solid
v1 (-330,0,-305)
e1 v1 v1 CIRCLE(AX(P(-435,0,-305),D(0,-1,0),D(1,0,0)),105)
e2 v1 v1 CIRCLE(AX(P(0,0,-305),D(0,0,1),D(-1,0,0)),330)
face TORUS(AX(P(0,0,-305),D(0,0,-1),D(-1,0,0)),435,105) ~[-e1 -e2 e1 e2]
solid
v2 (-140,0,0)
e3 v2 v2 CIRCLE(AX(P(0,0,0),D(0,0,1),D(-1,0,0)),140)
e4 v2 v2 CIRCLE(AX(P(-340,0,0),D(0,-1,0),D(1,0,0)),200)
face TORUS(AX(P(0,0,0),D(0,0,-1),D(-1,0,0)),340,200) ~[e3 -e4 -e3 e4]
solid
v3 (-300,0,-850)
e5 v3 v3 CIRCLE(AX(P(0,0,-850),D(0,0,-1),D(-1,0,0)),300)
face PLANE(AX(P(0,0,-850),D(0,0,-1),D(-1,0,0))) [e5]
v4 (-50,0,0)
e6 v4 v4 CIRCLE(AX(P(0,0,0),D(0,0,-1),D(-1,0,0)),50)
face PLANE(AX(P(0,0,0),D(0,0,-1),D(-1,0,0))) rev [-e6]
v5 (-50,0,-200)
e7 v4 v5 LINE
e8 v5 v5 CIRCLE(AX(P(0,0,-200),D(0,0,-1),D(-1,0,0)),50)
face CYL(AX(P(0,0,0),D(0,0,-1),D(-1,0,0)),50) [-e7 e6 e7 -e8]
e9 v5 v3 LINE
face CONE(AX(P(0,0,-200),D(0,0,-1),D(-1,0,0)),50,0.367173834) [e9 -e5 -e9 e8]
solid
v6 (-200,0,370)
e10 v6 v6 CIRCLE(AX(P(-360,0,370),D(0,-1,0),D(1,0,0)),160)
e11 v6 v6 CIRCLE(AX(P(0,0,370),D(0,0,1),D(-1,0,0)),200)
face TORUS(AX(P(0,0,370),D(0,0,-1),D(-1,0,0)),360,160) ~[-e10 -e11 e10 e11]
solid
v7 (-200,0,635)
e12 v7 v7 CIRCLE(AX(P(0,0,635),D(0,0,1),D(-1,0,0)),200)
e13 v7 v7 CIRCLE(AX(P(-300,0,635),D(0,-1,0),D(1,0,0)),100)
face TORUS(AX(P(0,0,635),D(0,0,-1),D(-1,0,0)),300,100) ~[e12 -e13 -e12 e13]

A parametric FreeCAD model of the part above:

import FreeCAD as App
import Part
import Sketcher


def add_polygon(sketch, points):
    """Adds a closed chain of lines whose ends are joined by coincident constraints."""
    first, n = sketch.GeometryCount, len(points)
    for a, b in zip(points, points[1:] + points[:1]):
        sketch.addGeometry(Part.LineSegment(App.Vector(*a, 0), App.Vector(*b, 0)), False)
    for i in range(n):
        sketch.addConstraint(Sketcher.Constraint("Coincident", first + i, 2, first + (i + 1) % n, 1))

doc = App.newDocument("Part")
body = doc.addObject("PartDesign::Body", "Body")

sketch1 = body.newObject("Sketcher::SketchObject", "Sketch")
sketch1.AttachmentSupport = (doc.getObject("XZ_Plane"), [""])
sketch1.MapMode = "FlatFace"
sketch1.addGeometry(Part.Circle(App.Vector(-340, 0, 0), App.Vector(0, 0, 1), 200), False)
sketch1.addConstraint([
    Sketcher.Constraint("PointOnObject", 0, 3, -1),
    Sketcher.Constraint("Diameter", 0, 400.0),
    Sketcher.Constraint("DistanceX", 0, 3, -1, 1, 340.0),
])
revolution = body.newObject("PartDesign::Revolution", "Revolution")
revolution.Profile = sketch1
revolution.ReferenceAxis = (sketch1, ["V_Axis"])
revolution.Angle = 360
body2 = doc.addObject("PartDesign::Body", "Body001")

sketch2 = body2.newObject("Sketcher::SketchObject", "Sketch001")
sketch2.AttachmentSupport = (doc.getObject("XZ_Plane001"), [""])
sketch2.MapMode = "FlatFace"
sketch2.addGeometry(Part.Circle(App.Vector(-435, -305, 0), App.Vector(0, 0, 1), 105), False)
sketch2.addConstraint([
    Sketcher.Constraint("Diameter", 0, 210.0),
    Sketcher.Constraint("DistanceX", 0, 3, -1, 1, 435.0),
    Sketcher.Constraint("DistanceY", 0, 3, -1, 1, 305.0),
])
revolution2 = body2.newObject("PartDesign::Revolution", "Revolution001")
revolution2.Profile = sketch2
revolution2.ReferenceAxis = (sketch2, ["V_Axis"])
revolution2.Angle = 360
body3 = doc.addObject("PartDesign::Body", "Body002")

sketch3 = body3.newObject("Sketcher::SketchObject", "Sketch002")
sketch3.AttachmentSupport = (doc.getObject("XZ_Plane002"), [""])
sketch3.MapMode = "FlatFace"
sketch3.addGeometry(Part.Circle(App.Vector(-360, 370, 0), App.Vector(0, 0, 1), 160), False)
sketch3.addConstraint([
    Sketcher.Constraint("Diameter", 0, 320.0),
    Sketcher.Constraint("DistanceX", 0, 3, -1, 1, 360.0),
    Sketcher.Constraint("DistanceY", -1, 1, 0, 3, 370.0),
])
revolution3 = body3.newObject("PartDesign::Revolution", "Revolution002")
revolution3.Profile = sketch3
revolution3.ReferenceAxis = (sketch3, ["V_Axis"])
revolution3.Angle = 360
body4 = doc.addObject("PartDesign::Body", "Body003")

sketch4 = body4.newObject("Sketcher::SketchObject", "Sketch003")
sketch4.AttachmentSupport = (doc.getObject("XZ_Plane003"), [""])
sketch4.MapMode = "FlatFace"
sketch4.addGeometry(Part.Circle(App.Vector(-300, 635, 0), App.Vector(0, 0, 1), 100), False)
sketch4.addConstraint([
    Sketcher.Constraint("Diameter", 0, 200.0),
    Sketcher.Constraint("DistanceX", 0, 3, -1, 1, 300.0),
    Sketcher.Constraint("DistanceY", -1, 1, 0, 3, 635.0),
])
revolution4 = body4.newObject("PartDesign::Revolution", "Revolution003")
revolution4.Profile = sketch4
revolution4.ReferenceAxis = (sketch4, ["V_Axis"])
revolution4.Angle = 360
body5 = doc.addObject("PartDesign::Body", "Body004")

sketch5 = body5.newObject("Sketcher::SketchObject", "Sketch004")
sketch5.AttachmentSupport = (doc.getObject("XZ_Plane004"), [""])
sketch5.MapMode = "FlatFace"
add_polygon(sketch5, [(0, -850), (0, 0), (-50, 0), (-50, -200), (-300, -850)])
sketch5.addConstraint([
    Sketcher.Constraint("Vertical", 0),
    Sketcher.Constraint("Horizontal", 1),
    Sketcher.Constraint("Vertical", 2),
    Sketcher.Constraint("Horizontal", 4),
    Sketcher.Constraint("Coincident", 0, 2, -1, 1),
    Sketcher.Constraint("DistanceX", 1, 2, 1, 1, 50.0),
    Sketcher.Constraint("DistanceX", 4, 1, 4, 2, 300.0),
    Sketcher.Constraint("DistanceY", 0, 1, 0, 2, 850.0),
    Sketcher.Constraint("DistanceY", 2, 2, 2, 1, 200.0),
])
revolution5 = body5.newObject("PartDesign::Revolution", "Revolution004")
revolution5.Profile = sketch5
revolution5.ReferenceAxis = (sketch5, ["V_Axis"])
revolution5.Angle = 360

doc.recompute()
